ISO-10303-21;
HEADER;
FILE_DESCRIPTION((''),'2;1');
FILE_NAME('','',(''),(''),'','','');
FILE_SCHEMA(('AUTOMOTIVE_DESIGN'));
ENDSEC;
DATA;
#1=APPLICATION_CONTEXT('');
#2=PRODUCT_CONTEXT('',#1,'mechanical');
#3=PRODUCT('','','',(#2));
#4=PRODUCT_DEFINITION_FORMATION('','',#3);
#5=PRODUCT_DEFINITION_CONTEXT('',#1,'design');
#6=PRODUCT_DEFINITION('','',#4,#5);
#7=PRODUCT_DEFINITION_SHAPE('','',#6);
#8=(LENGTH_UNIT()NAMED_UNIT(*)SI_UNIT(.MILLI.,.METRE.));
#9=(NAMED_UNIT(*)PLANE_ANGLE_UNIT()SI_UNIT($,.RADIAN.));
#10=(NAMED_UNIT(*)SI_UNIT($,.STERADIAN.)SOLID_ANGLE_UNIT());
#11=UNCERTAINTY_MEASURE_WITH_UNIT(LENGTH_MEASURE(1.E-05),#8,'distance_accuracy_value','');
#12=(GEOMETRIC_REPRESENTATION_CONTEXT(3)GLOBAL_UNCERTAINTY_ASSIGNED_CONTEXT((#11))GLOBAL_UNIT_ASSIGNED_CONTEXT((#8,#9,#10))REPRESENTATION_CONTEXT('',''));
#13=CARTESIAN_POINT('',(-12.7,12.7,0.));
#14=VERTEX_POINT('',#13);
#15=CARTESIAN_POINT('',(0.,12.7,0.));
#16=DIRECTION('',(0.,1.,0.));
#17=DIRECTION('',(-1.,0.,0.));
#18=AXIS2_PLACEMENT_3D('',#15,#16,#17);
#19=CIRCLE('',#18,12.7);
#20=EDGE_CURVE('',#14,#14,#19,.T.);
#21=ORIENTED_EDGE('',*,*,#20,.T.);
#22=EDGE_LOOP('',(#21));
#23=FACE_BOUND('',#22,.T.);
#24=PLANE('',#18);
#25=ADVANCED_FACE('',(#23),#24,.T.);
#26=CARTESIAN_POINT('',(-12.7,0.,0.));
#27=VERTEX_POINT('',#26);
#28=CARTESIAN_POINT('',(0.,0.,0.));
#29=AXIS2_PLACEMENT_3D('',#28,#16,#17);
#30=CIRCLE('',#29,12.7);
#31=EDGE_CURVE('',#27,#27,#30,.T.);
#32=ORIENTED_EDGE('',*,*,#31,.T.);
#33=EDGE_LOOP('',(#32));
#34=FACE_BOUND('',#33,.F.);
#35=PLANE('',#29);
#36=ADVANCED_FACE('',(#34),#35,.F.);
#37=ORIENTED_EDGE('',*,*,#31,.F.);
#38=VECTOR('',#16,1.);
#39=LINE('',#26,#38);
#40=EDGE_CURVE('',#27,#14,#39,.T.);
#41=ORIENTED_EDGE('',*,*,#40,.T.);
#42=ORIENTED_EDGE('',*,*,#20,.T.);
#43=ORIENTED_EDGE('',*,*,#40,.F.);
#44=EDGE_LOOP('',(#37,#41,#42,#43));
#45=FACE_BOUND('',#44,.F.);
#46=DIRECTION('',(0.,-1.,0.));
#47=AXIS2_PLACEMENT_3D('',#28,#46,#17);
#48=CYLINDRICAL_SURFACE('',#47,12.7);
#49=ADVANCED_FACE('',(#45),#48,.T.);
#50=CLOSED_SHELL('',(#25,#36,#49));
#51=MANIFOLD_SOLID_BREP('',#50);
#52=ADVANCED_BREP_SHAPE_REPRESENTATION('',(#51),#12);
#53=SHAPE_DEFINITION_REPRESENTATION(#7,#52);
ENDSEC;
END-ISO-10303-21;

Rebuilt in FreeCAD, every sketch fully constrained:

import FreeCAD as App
import Part
import Sketcher
from FreeCAD import Vector
Q = App.Units.Quantity

doc = App.newDocument("Part")
params = doc.addObject("Spreadsheet::Sheet", "Params")
for row, (alias, value) in enumerate([
    ("sketch1_diameter", "1 in"),
    ("pad1_length", "0.5 in"),
], start=1):
    params.set(f"A{row}", alias)
    params.set(f"B{row}", "=" + value)
    params.setAlias(f"B{row}", alias)

body = doc.addObject("PartDesign::Body", "Body")

sketch1 = doc.addObject("Sketcher::SketchObject", "Sketch")
body.addObject(sketch1)
sketch1.AttachmentSupport = (doc.XZ_Plane, [""])
sketch1.MapMode = "FlatFace"
sketch1.addGeometry(Part.Circle(Vector(0, 0, 0), Vector(0, 0, 1), 13), False)
sketch1.addConstraint(Sketcher.Constraint("Coincident", 0, 3, -1, 1))
sketch1.addConstraint(Sketcher.Constraint("Diameter", 0, Q("1 in")))
sketch1.setExpression("Constraints[1]", "Params.sketch1_diameter")
pad1 = doc.addObject("PartDesign::Pad", "Pad")
body.addObject(pad1)
pad1.Profile = sketch1
pad1.setExpression("Length", "Params.pad1_length")
pad1.Reversed = True

doc.recompute()
